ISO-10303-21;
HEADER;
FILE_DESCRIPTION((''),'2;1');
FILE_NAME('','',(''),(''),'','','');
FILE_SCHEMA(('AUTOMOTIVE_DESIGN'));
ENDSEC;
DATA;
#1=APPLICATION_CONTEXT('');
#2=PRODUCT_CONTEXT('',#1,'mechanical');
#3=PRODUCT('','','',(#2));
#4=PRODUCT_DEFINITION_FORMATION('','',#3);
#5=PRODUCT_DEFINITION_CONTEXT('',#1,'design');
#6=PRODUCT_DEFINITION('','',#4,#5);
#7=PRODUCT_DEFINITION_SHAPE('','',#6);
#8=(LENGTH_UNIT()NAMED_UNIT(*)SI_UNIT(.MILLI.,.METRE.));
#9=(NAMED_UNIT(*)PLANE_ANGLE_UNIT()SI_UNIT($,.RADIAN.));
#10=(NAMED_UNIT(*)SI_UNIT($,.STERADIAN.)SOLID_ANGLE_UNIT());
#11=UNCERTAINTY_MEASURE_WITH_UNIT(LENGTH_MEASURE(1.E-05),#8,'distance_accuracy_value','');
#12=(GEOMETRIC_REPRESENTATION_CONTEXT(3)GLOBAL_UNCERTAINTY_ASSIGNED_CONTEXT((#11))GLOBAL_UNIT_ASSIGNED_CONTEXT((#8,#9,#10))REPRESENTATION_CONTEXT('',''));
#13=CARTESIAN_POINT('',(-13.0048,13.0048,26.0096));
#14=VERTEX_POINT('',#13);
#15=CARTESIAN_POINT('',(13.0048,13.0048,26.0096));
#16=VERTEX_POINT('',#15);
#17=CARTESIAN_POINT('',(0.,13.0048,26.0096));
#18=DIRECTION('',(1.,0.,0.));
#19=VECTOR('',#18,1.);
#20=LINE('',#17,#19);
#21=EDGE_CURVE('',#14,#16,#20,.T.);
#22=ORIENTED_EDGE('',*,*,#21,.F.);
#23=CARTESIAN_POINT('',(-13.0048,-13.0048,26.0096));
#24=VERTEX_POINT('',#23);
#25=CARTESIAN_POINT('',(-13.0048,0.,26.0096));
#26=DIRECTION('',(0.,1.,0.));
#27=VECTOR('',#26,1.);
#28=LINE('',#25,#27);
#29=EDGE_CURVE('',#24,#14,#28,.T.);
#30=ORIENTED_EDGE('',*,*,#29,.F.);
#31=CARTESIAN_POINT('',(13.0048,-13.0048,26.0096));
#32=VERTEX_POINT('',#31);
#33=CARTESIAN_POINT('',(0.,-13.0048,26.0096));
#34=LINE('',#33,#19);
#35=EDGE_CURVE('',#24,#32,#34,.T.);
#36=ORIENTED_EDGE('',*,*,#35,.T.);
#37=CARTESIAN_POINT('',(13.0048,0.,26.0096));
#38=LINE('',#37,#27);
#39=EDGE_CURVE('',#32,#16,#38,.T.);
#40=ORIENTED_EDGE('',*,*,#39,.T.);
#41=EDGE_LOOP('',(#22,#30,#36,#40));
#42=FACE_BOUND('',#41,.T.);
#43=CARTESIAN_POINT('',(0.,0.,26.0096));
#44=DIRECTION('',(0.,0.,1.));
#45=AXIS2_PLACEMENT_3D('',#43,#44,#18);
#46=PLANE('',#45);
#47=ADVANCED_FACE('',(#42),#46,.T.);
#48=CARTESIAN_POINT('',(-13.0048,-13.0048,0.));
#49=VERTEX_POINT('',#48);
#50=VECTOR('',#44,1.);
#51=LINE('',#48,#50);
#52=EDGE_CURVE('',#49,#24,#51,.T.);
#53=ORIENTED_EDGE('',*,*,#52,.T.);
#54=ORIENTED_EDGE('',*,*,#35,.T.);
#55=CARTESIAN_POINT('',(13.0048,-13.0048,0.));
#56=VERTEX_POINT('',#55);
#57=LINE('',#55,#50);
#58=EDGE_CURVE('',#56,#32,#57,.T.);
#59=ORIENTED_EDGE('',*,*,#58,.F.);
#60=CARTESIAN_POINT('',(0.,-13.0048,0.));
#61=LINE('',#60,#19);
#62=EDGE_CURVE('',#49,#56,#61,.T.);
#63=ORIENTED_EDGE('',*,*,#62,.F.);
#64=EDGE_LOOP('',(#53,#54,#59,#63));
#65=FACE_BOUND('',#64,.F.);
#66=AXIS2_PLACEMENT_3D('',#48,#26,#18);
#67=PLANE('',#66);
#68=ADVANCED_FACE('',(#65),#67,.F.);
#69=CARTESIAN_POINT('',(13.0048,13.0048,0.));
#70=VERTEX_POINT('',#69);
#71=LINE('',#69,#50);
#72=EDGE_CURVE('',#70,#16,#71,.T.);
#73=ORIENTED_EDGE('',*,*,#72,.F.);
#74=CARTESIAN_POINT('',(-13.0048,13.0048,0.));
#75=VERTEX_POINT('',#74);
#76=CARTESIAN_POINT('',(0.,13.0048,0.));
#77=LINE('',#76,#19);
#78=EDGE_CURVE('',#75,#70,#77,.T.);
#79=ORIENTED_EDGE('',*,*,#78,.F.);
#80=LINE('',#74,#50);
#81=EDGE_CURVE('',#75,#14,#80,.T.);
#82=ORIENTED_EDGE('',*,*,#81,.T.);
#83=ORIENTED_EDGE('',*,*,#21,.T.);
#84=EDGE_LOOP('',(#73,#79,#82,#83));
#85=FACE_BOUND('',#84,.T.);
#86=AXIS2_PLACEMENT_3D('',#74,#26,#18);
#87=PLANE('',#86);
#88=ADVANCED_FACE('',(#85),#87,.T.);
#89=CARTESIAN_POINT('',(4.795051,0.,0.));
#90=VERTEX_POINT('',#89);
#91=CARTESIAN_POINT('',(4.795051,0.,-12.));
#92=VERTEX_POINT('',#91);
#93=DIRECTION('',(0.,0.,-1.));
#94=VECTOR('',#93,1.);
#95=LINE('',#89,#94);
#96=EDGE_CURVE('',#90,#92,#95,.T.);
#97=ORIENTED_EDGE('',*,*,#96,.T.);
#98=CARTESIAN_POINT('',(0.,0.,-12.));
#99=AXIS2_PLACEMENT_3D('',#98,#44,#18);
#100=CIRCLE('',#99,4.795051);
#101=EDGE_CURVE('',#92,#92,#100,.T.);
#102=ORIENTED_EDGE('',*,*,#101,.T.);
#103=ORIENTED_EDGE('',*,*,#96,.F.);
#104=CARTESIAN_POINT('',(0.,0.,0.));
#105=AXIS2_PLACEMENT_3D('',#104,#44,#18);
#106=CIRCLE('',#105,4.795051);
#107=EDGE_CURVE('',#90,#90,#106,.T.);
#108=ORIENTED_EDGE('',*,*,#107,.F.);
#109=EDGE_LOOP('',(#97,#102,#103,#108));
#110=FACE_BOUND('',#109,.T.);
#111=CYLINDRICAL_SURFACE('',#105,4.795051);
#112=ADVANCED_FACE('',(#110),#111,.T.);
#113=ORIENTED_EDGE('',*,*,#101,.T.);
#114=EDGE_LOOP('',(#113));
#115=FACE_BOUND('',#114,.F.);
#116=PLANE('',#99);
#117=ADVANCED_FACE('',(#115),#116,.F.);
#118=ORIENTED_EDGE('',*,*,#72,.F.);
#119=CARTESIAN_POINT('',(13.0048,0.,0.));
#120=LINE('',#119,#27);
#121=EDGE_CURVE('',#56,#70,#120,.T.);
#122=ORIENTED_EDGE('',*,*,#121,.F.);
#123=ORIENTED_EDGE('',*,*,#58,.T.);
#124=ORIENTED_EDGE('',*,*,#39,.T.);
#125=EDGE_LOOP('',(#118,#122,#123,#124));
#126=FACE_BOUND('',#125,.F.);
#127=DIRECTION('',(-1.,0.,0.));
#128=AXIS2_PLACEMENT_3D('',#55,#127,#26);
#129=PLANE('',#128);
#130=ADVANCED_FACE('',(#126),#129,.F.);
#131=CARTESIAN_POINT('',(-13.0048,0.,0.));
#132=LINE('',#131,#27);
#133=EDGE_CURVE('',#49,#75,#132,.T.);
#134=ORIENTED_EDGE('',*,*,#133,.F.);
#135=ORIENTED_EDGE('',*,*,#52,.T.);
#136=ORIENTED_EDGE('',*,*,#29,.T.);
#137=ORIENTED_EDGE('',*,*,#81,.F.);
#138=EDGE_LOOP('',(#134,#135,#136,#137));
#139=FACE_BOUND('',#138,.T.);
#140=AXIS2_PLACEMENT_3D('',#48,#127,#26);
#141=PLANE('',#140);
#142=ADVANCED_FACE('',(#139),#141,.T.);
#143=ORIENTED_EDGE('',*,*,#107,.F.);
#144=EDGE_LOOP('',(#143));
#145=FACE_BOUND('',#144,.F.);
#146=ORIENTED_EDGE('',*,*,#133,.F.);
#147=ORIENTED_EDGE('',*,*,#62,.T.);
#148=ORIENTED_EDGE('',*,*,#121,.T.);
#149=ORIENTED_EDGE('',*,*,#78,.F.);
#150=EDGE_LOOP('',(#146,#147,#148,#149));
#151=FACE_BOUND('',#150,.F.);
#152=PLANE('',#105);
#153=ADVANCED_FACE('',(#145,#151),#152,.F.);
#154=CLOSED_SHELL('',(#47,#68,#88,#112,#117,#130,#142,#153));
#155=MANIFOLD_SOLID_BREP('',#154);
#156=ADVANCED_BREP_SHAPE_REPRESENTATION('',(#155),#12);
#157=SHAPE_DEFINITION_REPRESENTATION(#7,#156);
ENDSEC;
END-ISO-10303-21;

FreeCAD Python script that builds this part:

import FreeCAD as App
import Part
import Sketcher

V = App.Vector

doc = App.newDocument("Part")
body = doc.addObject("PartDesign::Body", "Body")

sketch1 = body.newObject("Sketcher::SketchObject", "Sketch")
sketch1.AttachmentSupport = (doc.getObject("XY_Plane"), [""])
sketch1.MapMode = "FlatFace"
sketch1.addGeometry(Part.LineSegment(V(-13.0048, 13.0048, 0), V(-13.0048, -13.0048, 0)), False)
sketch1.addGeometry(Part.LineSegment(V(-13.0048, -13.0048, 0), V(13.0048, -13.0048, 0)), False)
sketch1.addGeometry(Part.LineSegment(V(13.0048, -13.0048, 0), V(13.0048, 13.0048, 0)), False)
sketch1.addGeometry(Part.LineSegment(V(13.0048, 13.0048, 0), V(-13.0048, 13.0048, 0)), False)
sketch1.addConstraint(Sketcher.Constraint("Coincident", 0, 2, 1, 1))
sketch1.addConstraint(Sketcher.Constraint("Coincident", 1, 2, 2, 1))
sketch1.addConstraint(Sketcher.Constraint("Coincident", 2, 2, 3, 1))
sketch1.addConstraint(Sketcher.Constraint("Coincident", 3, 2, 0, 1))
sketch1.addConstraint(Sketcher.Constraint("Vertical", 0))
sketch1.addConstraint(Sketcher.Constraint("Horizontal", 1))
sketch1.addConstraint(Sketcher.Constraint("Vertical", 2))
sketch1.addConstraint(Sketcher.Constraint("Horizontal", 3))
sketch1.addConstraint(Sketcher.Constraint("Symmetric", 0, 2, 2, 2, -1, 1))
sketch1.addConstraint(Sketcher.Constraint("Equal", 3, 0))
sketch1.addConstraint(Sketcher.Constraint("DistanceX", 1, 1, 1, 2, 26.0096))
pad1 = body.newObject("PartDesign::Pad", "Pad")
pad1.Profile = sketch1
pad1.Length = 26.0096

sketch2 = body.newObject("Sketcher::SketchObject", "Sketch001")
sketch2.AttachmentSupport = (doc.getObject("XY_Plane"), [""])
sketch2.MapMode = "FlatFace"
sketch2.addGeometry(Part.Circle(V(0, 0, 0), V(0, 0, 1), 4.795051), False)
sketch2.addConstraint(Sketcher.Constraint("Coincident", 0, 3, -1, 1))
sketch2.addConstraint(Sketcher.Constraint("Diameter", 0, 9.590102))
pad2 = body.newObject("PartDesign::Pad", "Pad001")
pad2.Profile = sketch2
pad2.Length = 1.2
pad2.Reversed = True

sketch3 = body.newObject("Sketcher::SketchObject", "Sketch002")
sketch3.AttachmentSupport = (doc.getObject("XY_Plane"), [""])
sketch3.MapMode = "FlatFace"
sketch3.addGeometry(Part.Circle(V(0, 0, 0), V(0, 0, 1), 4.795051), False)
sketch3.addConstraint(Sketcher.Constraint("Coincident", 0, 3, -1, 1))
sketch3.addConstraint(Sketcher.Constraint("Diameter", 0, 9.590102))
pad3 = body.newObject("PartDesign::Pad", "Pad002")
pad3.Profile = sketch3
pad3.Length = 12
pad3.Reversed = True

doc.recompute()
